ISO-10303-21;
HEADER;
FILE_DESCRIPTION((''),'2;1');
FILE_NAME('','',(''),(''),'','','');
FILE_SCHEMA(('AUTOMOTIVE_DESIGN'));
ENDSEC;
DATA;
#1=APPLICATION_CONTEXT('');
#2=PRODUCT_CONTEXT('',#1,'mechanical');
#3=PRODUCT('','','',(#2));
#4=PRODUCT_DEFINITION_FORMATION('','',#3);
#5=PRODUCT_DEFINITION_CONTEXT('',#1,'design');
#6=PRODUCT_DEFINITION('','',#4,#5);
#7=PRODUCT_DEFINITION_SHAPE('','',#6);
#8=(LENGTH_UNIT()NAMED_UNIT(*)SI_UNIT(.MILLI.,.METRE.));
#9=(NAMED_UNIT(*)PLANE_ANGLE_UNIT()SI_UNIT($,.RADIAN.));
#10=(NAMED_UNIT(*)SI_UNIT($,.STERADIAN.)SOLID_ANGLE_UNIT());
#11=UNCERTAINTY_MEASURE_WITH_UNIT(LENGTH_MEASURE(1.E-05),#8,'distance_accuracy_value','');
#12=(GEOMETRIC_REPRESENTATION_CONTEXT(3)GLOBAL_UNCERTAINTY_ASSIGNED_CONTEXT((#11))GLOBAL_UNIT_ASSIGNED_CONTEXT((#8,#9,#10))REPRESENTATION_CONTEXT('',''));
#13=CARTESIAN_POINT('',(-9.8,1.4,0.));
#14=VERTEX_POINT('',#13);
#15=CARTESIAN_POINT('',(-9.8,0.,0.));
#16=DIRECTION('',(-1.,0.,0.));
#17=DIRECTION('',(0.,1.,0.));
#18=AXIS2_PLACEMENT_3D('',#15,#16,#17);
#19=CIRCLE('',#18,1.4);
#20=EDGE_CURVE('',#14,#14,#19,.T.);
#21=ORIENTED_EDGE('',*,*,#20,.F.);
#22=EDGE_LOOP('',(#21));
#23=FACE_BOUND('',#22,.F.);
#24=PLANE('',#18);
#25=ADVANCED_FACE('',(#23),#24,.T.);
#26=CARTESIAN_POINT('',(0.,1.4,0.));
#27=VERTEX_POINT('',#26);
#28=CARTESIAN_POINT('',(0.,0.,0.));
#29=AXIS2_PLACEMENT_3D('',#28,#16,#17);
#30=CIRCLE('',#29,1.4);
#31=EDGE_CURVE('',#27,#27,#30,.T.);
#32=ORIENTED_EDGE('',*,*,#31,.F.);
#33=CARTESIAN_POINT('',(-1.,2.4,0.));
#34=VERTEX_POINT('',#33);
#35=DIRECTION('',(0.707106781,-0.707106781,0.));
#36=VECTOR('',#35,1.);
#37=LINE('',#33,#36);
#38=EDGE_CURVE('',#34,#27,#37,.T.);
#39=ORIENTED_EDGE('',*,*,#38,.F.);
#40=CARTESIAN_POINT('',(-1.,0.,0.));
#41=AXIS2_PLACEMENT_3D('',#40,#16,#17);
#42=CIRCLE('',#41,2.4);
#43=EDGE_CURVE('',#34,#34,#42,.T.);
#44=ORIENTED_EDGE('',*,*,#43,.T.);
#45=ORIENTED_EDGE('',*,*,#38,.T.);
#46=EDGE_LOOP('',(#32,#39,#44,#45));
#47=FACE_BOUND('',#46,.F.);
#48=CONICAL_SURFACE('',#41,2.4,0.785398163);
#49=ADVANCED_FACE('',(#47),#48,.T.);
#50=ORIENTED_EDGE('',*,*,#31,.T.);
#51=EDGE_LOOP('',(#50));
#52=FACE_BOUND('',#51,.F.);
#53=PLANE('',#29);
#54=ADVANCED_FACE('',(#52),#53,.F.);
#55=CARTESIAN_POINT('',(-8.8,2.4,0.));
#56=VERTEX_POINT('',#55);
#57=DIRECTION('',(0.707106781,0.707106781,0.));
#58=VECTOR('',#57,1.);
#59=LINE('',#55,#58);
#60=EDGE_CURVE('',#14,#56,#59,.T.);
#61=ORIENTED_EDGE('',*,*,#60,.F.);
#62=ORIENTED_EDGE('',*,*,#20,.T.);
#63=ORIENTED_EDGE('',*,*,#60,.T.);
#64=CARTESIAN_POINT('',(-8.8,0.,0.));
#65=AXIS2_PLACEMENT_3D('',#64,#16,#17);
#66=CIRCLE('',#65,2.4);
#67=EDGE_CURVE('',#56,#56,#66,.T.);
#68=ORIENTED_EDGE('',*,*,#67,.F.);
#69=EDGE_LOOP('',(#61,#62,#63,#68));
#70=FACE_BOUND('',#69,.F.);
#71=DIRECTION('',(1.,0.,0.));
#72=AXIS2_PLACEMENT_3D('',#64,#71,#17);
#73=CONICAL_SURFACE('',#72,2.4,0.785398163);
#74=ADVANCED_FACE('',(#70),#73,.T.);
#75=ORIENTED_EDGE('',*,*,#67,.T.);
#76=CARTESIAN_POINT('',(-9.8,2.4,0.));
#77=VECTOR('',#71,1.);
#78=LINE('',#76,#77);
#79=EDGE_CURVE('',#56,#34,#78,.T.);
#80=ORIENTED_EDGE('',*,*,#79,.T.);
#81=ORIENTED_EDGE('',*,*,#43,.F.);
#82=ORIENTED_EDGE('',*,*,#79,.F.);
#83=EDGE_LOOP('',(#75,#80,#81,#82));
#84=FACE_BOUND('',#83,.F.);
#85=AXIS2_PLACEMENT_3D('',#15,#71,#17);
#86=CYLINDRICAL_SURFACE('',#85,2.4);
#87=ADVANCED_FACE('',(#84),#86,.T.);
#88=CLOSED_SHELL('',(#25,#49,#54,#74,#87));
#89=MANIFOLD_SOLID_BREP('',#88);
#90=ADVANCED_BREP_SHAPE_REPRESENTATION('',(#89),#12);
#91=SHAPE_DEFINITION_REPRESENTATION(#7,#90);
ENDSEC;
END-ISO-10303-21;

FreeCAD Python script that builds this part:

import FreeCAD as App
import Part
import Sketcher

V = App.Vector


def edges_at(feature, points):
    """Names of the edges that pass closest to the given points."""
    edges = feature.Shape.Edges
    near = lambda p: min(range(len(edges)), key=lambda i: edges[i].distToShape(Part.Vertex(*p))[0])
    return sorted({f"Edge{near(p) + 1}" for p in points})


def add_polygon(sketch, points):
    """Adds a closed chain of lines whose ends are joined by coincident constraints."""
    first, n = sketch.GeometryCount, len(points)
    for a, b in zip(points, points[1:] + points[:1]):
        sketch.addGeometry(Part.LineSegment(App.Vector(*a, 0), App.Vector(*b, 0)), False)
    for i in range(n):
        sketch.addConstraint(Sketcher.Constraint("Coincident", first + i, 2, first + (i + 1) % n, 1))

doc = App.newDocument("Part")
body = doc.addObject("PartDesign::Body", "Body")

# Sketch on XY plane
sketch1 = body.newObject("Sketcher::SketchObject", "Sketch")
sketch1.AttachmentSupport = (doc.getObject("XY_Plane"), [""])
sketch1.MapMode = "FlatFace"
add_polygon(sketch1, [(-9.8, 0), (0, 0), (0, 2.4), (-9.8, 2.4)])  # lines 0-3
sketch1.addConstraint([
    Sketcher.Constraint("Horizontal", 0),
    Sketcher.Constraint("Vertical", 1),
    Sketcher.Constraint("Horizontal", 2),
    Sketcher.Constraint("Vertical", 3),
    Sketcher.Constraint("Coincident", 0, 2, -1, 1),
    Sketcher.Constraint("DistanceX", 0, 1, 0, 2, 9.8),
    Sketcher.Constraint("DistanceY", 1, 1, 1, 2, 2.4),
])
revolution = body.newObject("PartDesign::Revolution", "Revolution")
revolution.Profile = sketch1
revolution.ReferenceAxis = (sketch1, ["H_Axis"])
revolution.Angle = 360
doc.recompute()

chamfer = body.newObject("PartDesign::Chamfer", "Chamfer")
chamfer.Base = (revolution, edges_at(revolution, [(-9.8, -2.4, 0), (0, -2.4, 0)]))
chamfer.Size = 1

doc.recompute()
